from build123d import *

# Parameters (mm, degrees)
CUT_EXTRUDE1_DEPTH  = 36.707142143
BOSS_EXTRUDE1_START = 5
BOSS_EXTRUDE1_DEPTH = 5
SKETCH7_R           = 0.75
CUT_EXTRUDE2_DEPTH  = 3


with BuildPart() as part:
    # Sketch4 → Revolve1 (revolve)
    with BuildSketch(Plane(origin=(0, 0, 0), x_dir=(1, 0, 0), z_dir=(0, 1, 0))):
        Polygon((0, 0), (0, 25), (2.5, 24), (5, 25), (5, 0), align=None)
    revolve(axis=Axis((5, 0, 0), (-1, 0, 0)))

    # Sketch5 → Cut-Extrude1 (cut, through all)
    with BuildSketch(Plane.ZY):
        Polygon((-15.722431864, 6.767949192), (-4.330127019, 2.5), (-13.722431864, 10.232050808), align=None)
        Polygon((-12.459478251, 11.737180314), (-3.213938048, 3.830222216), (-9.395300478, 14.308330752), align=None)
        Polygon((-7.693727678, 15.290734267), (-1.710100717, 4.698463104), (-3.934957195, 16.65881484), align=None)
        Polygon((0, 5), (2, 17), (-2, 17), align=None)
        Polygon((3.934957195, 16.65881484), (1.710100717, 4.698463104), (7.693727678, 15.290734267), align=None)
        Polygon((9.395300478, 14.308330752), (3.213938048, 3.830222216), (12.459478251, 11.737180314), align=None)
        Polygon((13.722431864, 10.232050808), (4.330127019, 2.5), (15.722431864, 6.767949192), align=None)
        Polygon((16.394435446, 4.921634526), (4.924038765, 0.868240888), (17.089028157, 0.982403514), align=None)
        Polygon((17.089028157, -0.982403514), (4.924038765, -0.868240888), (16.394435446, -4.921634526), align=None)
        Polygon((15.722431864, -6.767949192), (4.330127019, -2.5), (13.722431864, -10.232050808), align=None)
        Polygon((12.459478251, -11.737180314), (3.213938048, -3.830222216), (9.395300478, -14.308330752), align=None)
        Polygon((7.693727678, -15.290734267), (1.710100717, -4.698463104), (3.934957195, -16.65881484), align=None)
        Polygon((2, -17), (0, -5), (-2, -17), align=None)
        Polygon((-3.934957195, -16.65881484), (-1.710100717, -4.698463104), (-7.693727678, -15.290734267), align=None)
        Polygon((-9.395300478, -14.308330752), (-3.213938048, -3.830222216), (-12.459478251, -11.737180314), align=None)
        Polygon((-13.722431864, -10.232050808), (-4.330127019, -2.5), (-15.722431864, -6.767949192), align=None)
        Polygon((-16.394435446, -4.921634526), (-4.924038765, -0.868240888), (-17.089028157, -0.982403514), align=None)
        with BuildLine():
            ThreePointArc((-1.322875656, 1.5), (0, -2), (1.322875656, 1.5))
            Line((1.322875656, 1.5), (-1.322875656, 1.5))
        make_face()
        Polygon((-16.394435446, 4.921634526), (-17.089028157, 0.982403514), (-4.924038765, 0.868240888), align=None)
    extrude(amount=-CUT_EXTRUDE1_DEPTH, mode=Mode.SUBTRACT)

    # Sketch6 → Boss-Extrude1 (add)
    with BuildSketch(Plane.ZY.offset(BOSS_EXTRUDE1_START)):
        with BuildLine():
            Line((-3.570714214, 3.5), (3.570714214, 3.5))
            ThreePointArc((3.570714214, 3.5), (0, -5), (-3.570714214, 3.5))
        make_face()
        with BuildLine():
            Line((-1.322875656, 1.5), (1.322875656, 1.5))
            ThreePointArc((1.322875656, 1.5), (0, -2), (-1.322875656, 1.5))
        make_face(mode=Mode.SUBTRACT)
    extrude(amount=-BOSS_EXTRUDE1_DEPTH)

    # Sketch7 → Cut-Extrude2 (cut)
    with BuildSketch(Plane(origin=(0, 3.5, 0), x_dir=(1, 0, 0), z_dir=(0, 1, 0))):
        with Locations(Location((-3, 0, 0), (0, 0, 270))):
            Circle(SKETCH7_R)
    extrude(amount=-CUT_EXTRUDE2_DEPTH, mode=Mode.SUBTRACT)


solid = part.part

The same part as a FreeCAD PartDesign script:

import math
import FreeCAD as App
import Part
import Sketcher
from FreeCAD import Vector
Q = App.Units.Quantity


def add_polygon(sketch, points):
    """Adds a closed chain of lines whose ends are joined by coincident constraints."""
    first, n = sketch.GeometryCount, len(points)
    for a, b in zip(points, points[1:] + points[:1]):
        sketch.addGeometry(Part.LineSegment(App.Vector(*a, 0), App.Vector(*b, 0)), False)
    for i in range(n):
        sketch.addConstraint(Sketcher.Constraint("Coincident", first + i, 2, first + (i + 1) % n, 1))

doc = App.newDocument("Part")
params = doc.addObject("Spreadsheet::Sheet", "Params")
for row, (alias, value) in enumerate([
    ("sketch1_width", "5 mm"),
    ("sketch1_height", "25 mm"),
    ("revolution_angle", "360 deg"),
    ("sketch2_radius", "2 mm"),
    ("sketch2_height", "4 mm"),
    ("sketch2_length", "4 mm"),
    ("sketch3_radius", "5 mm"),
    ("sketch3_radius2", "2 mm"),
    ("pad1_length", "5 mm"),
    ("sketch4_diameter", "1.5 mm"),
    ("pocket2_length", "3 mm"),
], start=1):
    params.set(f"A{row}", alias)
    params.set(f"B{row}", "=" + value)
    params.setAlias(f"B{row}", alias)

body = doc.addObject("PartDesign::Body", "Body")

sketch1 = doc.addObject("Sketcher::SketchObject", "Sketch")
body.addObject(sketch1)
sketch1.AttachmentSupport = (doc.XZ_Plane, [""])
sketch1.MapMode = "FlatFace"
add_polygon(sketch1, [(0, -25), (0, 0), (5, 0), (5, -25), (2.5, -24)])
sketch1.addConstraint([
    Sketcher.Constraint("Vertical", 0),
    Sketcher.Constraint("Horizontal", 1),
    Sketcher.Constraint("Vertical", 2),
    Sketcher.Constraint("Coincident", 0, 2, -1, 1),
    Sketcher.Constraint("Horizontal", 2, 2, 4, 2),
    Sketcher.Constraint("Equal", 3, 4),
    Sketcher.Constraint("DistanceX", 1, 1, 1, 2, 5.0),
    Sketcher.Constraint("DistanceY", 0, 1, 0, 2, 25.0),
    Sketcher.Constraint("DistanceY", 3, 2, -1, 1, 24.0),
])
sketch1.setExpression("Constraints[11]", "Params.sketch1_width")
sketch1.setExpression("Constraints[12]", "Params.sketch1_height")
revolution = doc.addObject("PartDesign::Revolution", "Revolution")
body.addObject(revolution)
revolution.Profile = sketch1
revolution.ReferenceAxis = (sketch1, ["H_Axis"])
revolution.setExpression("Angle", "Params.revolution_angle")

sketch2 = doc.addObject("Sketcher::SketchObject", "Sketch001")
body.addObject(sketch2)
sketch2.AttachmentSupport = (doc.YZ_Plane, [""])
sketch2.MapMode = "FlatFace"
add_polygon(sketch2, [(6.8, -15.7), (2.5, -4.3), (10.2, -13.7)])
add_polygon(sketch2, [(11.7, -12.5), (3.8, -3.2), (14.3, -9.4)])
add_polygon(sketch2, [(15.3, -7.7), (4.7, -1.7), (16.7, -3.9)])
add_polygon(sketch2, [(5, 0), (17, 2), (17, -2)])
add_polygon(sketch2, [(16.7, 3.9), (4.7, 1.7), (15.3, 7.7)])
add_polygon(sketch2, [(14.3, 9.4), (3.8, 3.2), (11.7, 12.5)])
add_polygon(sketch2, [(10.2, 13.7), (2.5, 4.3), (6.8, 15.7)])
add_polygon(sketch2, [(4.9, 16.4), (0.9, 4.9), (1, 17.1)])
add_polygon(sketch2, [(-1, 17.1), (-0.9, 4.9), (-4.9, 16.4)])
add_polygon(sketch2, [(-6.8, 15.7), (-2.5, 4.3), (-10.2, 13.7)])
add_polygon(sketch2, [(-11.7, 12.5), (-3.8, 3.2), (-14.3, 9.4)])
add_polygon(sketch2, [(-15.3, 7.7), (-4.7, 1.7), (-16.7, 3.9)])
add_polygon(sketch2, [(-17, 2), (-5, 0), (-17, -2)])
add_polygon(sketch2, [(-16.7, -3.9), (-4.7, -1.7), (-15.3, -7.7)])
add_polygon(sketch2, [(-14.3, -9.4), (-3.8, -3.2), (-11.7, -12.5)])
add_polygon(sketch2, [(-10.2, -13.7), (-2.5, -4.3), (-6.8, -15.7)])
add_polygon(sketch2, [(-4.9, -16.4), (-0.9, -4.9), (-1, -17.1)])
sketch2.addGeometry(Part.ArcOfCircle(Part.Circle(Vector(0, 0, 0), Vector(0, 0, 1), 2), math.radians(41), math.radians(319)), False)
sketch2.addGeometry(Part.LineSegment(Vector(1.5, 1.3, 0), Vector(1.5, -1.3, 0)), False)
add_polygon(sketch2, [(4.9, -16.4), (1, -17.1), (0.9, -4.9)])
sketch2.addConstraint([
    Sketcher.Constraint("Coincident", 51, 1, 52, 1),
    Sketcher.Constraint("Coincident", 52, 2, 51, 2),
    Sketcher.Constraint("Vertical", 10),
    Sketcher.Constraint("Vertical", 38),
    Sketcher.Constraint("Vertical", 52),
    Sketcher.Constraint("Coincident", 51, 3, -1, 1),
    Sketcher.Constraint("Symmetric", 0, 2, 27, 2, -1, 1),
    Sketcher.Constraint("Symmetric", 1, 2, 28, 2, -1, 1),
    Sketcher.Constraint("Symmetric", 2, 2, 29, 2, -1, 1),
    Sketcher.Constraint("Symmetric", 3, 2, 30, 2, -1, 1),
    Sketcher.Constraint("Symmetric", 4, 2, 31, 2, -1, 1),
    Sketcher.Constraint("Symmetric", 5, 2, 32, 2, -1, 1),
    Sketcher.Constraint("Symmetric", 6, 2, 33, 2, -1, 1),
    Sketcher.Constraint("Symmetric", 7, 2, 34, 2, -1, 1),
    Sketcher.Constraint("Symmetric", 8, 2, 35, 2, -1, 1),
    Sketcher.Constraint("Symmetric", 11, 2, 36, 2, -1, 1),
    Sketcher.Constraint("Symmetric", 9, 2, 37, 2, -1, 1),
    Sketcher.Constraint("Symmetric", 12, 2, 39, 2, -1, 1),
    Sketcher.Constraint("Symmetric", 13, 2, 40, 2, -1, 1),
    Sketcher.Constraint("Symmetric", 14, 2, 41, 2, -1, 1),
    Sketcher.Constraint("Symmetric", 15, 2, 42, 2, -1, 1),
    Sketcher.Constraint("Symmetric", 16, 2, 43, 2, -1, 1),
    Sketcher.Constraint("Symmetric", 17, 2, 44, 2, -1, 1),
    Sketcher.Constraint("Symmetric", 18, 2, 45, 2, -1, 1),
    Sketcher.Constraint("Symmetric", 19, 2, 46, 2, -1, 1),
    Sketcher.Constraint("Symmetric", 20, 2, 47, 2, -1, 1),
    Sketcher.Constraint("Symmetric", 21, 2, 48, 2, -1, 1),
    Sketcher.Constraint("Symmetric", 22, 2, 49, 2, -1, 1),
    Sketcher.Constraint("Symmetric", 23, 2, 50, 2, -1, 1),
    Sketcher.Constraint("Symmetric", 26, 2, 53, 2, -1, 1),
    Sketcher.Constraint("Symmetric", 24, 2, 54, 2, -1, 1),
    Sketcher.Constraint("Symmetric", 25, 2, 55, 2, -1, 1),
    Sketcher.Constraint("Symmetric", 21, 2, 24, 2, -2),
    Sketcher.Constraint("Symmetric", 23, 2, 25, 2, -2),
    Sketcher.Constraint("Symmetric", 22, 2, 26, 2, -2),
    Sketcher.Constraint("Symmetric", 18, 2, 27, 2, -2),
    Sketcher.Constraint("Symmetric", 20, 2, 28, 2, -2),
    Sketcher.Constraint("Symmetric", 19, 2, 29, 2, -2),
    Sketcher.Constraint("Symmetric", 15, 2, 30, 2, -2),
    Sketcher.Constraint("Symmetric", 17, 2, 31, 2, -2),
    Sketcher.Constraint("Symmetric", 16, 2, 32, 2, -2),
    Sketcher.Constraint("Symmetric", 12, 2, 33, 2, -2),
    Sketcher.Constraint("Symmetric", 14, 2, 34, 2, -2),
    Sketcher.Constraint("Symmetric", 13, 2, 35, 2, -2),
    Sketcher.Constraint("PointOnObject", 11, 2, -1),
    Sketcher.Constraint("Parallel", 11, 36),
    Sketcher.Constraint("Horizontal", 10, 2, 37, 2),
    Sketcher.Constraint("Equal", 0, 1),
    Sketcher.Constraint("Equal", 1, 3),
    Sketcher.Constraint("Equal", 3, 4),
    Sketcher.Constraint("Equal", 2, 5),
    Sketcher.Constraint("Equal", 4, 6),
    Sketcher.Constraint("Equal", 6, 7),
    Sketcher.Constraint("Equal", 5, 8),
    Sketcher.Constraint("Equal", 7, 9),
    Sketcher.Constraint("Equal", 19, 21),
    Sketcher.Constraint("Equal", 21, 22),
    Sketcher.Constraint("Equal", 20, 23),
    Sketcher.Constraint("Radius", 51, 2.0),
    Sketcher.Constraint("DistanceY", 10, 2, 10, 1, 4.0),
    Sketcher.Constraint("Angle", 2, Q("-150 deg")),
    Sketcher.Constraint("Angle", 5, Q("-130 deg")),
    Sketcher.Constraint("Angle", 8, Q("-110 deg")),
    Sketcher.Constraint("Angle", 23, Q("-10 deg")),
    Sketcher.Constraint("Distance", 2, 4.0),
    Sketcher.Constraint("DistanceX", -1, 1, 9, 2, 17.0),
    Sketcher.Constraint("DistanceX", -1, 1, 11, 2, 5.0),
    Sketcher.Constraint("DistanceX", 27, 2, 18, 2, 5.0),
    Sketcher.Constraint("DistanceX", 51, 1, 18, 2, 1.0),
    Sketcher.Constraint("DistanceY", 4, 2, -1, 1, 9.3953),
    Sketcher.Constraint("DistanceY", 6, 2, -1, 1, 1.710101),
    Sketcher.Constraint("DistanceY", 15, 2, 21, 2, 1.710101),
    Sketcher.Constraint("DistanceY", 18, 2, 22, 2, 12.758901),
    Sketcher.Constraint("DistanceX", -1, 1, 4, 2, 14.308331),
    Sketcher.Constraint("DistanceX", -1, 1, 21, 2, 0.868241),
    Sketcher.Constraint("DistanceX", 3, 2, 6, 2, 0.868241),
])
sketch2.setExpression("Constraints[112]", "Params.sketch2_radius")
sketch2.setExpression("Constraints[113]", "Params.sketch2_height")
sketch2.setExpression("Constraints[118]", "Params.sketch2_length")
pocket1 = doc.addObject("PartDesign::Pocket", "Pocket")
body.addObject(pocket1)
pocket1.Profile = sketch2
pocket1.Type = "ThroughAll"
pocket1.Reversed = True

sketch3 = doc.addObject("Sketcher::SketchObject", "Sketch002")
body.addObject(sketch3)
sketch3.AttachmentSupport = (doc.YZ_Plane, [""])
sketch3.MapMode = "FlatFace"
sketch3.AttachmentOffset = App.Placement(Vector(0, 0, -5), App.Rotation())
sketch3.addGeometry([
    Part.LineSegment(Vector(3.5, 3.6, 0), Vector(3.5, -3.6, 0)),
    Part.ArcOfCircle(Part.Circle(Vector(0, 0, 0), Vector(0, 0, 1), 5), math.radians(46), math.radians(314)),
    Part.LineSegment(Vector(1.5, -1.3, 0), Vector(1.5, 1.3, 0)),
    Part.ArcOfCircle(Part.Circle(Vector(0, 0, 0), Vector(0, 0, 1), 2), math.radians(41), math.radians(319)),
], False)
sketch3.addConstraint([
    Sketcher.Constraint("Coincident", 0, 1, 1, 1),
    Sketcher.Constraint("Coincident", 1, 2, 0, 2),
    Sketcher.Constraint("Coincident", 2, 1, 3, 2),
    Sketcher.Constraint("Coincident", 3, 1, 2, 2),
    Sketcher.Constraint("Vertical", 0),
    Sketcher.Constraint("Vertical", 2),
    Sketcher.Constraint("Coincident", 1, 3, -1, 1),
    Sketcher.Constraint("Coincident", 3, 3, -1, 1),
    Sketcher.Constraint("Radius", 1, 5.0),
    Sketcher.Constraint("Radius", 3, 2.0),
    Sketcher.Constraint("DistanceX", 2, 1, 1, 2, 2.0),
    Sketcher.Constraint("DistanceX", -1, 1, 0, 1, 3.5),
])
sketch3.setExpression("Constraints[8]", "Params.sketch3_radius")
sketch3.setExpression("Constraints[9]", "Params.sketch3_radius2")
pad1 = doc.addObject("PartDesign::Pad", "Pad")
body.addObject(pad1)
pad1.Profile = sketch3
pad1.setExpression("Length", "Params.pad1_length")

sketch4 = doc.addObject("Sketcher::SketchObject", "Sketch003")
body.addObject(sketch4)
sketch4.AttachmentSupport = (doc.XZ_Plane, [""])
sketch4.MapMode = "FlatFace"
sketch4.AttachmentOffset = App.Placement(Vector(0, 0, -3.5), App.Rotation())
sketch4.addGeometry(Part.Circle(Vector(-3, 0, 0), Vector(0, 0, 1), 0.8), False)
sketch4.addConstraint([
    Sketcher.Constraint("PointOnObject", 0, 3, -1),
    Sketcher.Constraint("Diameter", 0, 1.5),
    Sketcher.Constraint("DistanceX", 0, 3, -1, 1, 3.0),
])
sketch4.setExpression("Constraints[1]", "Params.sketch4_diameter")
pocket2 = doc.addObject("PartDesign::Pocket", "Pocket001")
body.addObject(pocket2)
pocket2.Profile = sketch4
pocket2.setExpression("Length", "Params.pocket2_length")
pocket2.Reversed = True

doc.recompute()
